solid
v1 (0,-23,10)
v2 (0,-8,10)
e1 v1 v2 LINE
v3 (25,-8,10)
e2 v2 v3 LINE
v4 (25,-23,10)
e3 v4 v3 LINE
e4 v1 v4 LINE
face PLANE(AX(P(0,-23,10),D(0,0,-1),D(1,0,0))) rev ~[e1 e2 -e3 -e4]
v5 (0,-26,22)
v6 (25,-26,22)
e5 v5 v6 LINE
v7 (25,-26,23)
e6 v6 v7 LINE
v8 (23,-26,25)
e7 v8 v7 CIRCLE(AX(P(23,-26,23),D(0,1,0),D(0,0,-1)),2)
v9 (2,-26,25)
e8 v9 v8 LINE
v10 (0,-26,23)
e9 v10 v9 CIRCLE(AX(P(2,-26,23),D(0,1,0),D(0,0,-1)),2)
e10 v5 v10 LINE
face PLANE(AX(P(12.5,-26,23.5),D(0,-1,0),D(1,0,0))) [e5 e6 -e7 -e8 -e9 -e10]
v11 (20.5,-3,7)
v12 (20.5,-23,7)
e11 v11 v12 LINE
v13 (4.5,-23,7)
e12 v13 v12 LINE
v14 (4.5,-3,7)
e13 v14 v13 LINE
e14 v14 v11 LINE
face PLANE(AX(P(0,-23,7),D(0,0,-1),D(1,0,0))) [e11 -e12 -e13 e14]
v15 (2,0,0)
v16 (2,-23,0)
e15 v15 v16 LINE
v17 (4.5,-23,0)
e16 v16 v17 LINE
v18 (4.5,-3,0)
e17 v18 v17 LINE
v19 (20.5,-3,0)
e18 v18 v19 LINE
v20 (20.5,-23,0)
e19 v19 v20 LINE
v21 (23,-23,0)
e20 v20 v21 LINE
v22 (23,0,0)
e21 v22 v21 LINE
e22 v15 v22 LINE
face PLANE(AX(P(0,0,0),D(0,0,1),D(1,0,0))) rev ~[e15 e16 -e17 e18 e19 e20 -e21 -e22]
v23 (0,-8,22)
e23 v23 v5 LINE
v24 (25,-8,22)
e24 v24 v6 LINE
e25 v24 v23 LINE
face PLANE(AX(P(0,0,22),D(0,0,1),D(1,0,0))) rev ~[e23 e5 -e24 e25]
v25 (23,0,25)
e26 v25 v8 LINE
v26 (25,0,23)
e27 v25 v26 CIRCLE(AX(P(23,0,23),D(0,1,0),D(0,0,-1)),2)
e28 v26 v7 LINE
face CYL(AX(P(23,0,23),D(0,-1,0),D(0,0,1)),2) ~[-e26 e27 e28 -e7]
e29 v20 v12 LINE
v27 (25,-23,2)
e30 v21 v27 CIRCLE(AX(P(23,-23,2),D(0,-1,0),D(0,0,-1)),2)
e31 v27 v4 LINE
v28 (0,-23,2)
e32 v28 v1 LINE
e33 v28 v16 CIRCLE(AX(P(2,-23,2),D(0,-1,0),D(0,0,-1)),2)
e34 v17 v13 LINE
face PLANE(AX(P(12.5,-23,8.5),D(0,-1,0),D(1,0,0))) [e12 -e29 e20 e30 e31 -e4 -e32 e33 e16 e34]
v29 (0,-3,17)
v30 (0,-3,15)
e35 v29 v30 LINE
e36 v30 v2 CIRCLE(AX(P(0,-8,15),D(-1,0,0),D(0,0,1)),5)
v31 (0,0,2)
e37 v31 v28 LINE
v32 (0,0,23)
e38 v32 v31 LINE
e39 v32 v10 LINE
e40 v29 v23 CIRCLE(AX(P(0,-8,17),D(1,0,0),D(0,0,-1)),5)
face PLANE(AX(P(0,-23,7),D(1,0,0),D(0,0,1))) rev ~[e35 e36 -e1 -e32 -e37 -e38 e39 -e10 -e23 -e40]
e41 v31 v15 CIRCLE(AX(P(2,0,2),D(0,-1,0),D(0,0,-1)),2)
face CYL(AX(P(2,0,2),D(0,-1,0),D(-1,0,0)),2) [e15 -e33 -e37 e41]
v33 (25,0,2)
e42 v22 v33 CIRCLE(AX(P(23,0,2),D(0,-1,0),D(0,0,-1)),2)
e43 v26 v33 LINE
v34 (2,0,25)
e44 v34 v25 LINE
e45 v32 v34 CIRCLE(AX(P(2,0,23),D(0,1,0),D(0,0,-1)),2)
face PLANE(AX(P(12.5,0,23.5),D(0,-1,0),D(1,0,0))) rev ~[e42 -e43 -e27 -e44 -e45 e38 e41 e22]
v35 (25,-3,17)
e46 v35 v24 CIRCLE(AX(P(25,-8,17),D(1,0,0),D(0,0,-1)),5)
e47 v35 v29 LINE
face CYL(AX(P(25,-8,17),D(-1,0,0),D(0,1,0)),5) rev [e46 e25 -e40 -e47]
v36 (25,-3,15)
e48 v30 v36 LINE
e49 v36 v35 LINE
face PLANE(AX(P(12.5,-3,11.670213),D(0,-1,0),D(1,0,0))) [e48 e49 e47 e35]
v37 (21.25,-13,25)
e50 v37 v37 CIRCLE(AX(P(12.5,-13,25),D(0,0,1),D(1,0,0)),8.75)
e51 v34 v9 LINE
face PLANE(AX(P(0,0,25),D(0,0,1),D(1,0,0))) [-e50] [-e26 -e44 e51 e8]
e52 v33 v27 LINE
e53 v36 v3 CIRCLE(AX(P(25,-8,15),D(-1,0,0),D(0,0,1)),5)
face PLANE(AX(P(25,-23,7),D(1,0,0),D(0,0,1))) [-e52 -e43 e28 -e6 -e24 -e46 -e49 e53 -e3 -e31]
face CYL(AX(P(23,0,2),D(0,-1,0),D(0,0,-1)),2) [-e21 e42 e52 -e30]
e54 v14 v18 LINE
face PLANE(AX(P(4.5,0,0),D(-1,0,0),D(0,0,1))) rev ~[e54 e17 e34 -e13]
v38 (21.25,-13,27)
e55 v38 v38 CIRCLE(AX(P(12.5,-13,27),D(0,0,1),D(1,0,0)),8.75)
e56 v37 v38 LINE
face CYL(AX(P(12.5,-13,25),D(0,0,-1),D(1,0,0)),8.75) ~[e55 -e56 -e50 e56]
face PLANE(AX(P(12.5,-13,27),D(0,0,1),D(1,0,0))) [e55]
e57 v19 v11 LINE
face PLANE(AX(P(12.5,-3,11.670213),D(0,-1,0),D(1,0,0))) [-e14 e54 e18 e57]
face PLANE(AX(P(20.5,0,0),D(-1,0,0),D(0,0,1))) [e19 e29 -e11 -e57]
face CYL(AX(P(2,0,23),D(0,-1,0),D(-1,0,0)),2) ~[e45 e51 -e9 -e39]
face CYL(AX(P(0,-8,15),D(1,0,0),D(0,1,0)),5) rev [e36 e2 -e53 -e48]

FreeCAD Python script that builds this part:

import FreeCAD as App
import Part
import Sketcher
from FreeCAD import Vector


def edges_at(feature, points):
    """Names of the edges that pass closest to the given points."""
    edges = feature.Shape.Edges
    near = lambda p: min(range(len(edges)), key=lambda i: edges[i].distToShape(Part.Vertex(*p))[0])
    return sorted({f"Edge{near(p) + 1}" for p in points})


def add_polygon(sketch, points):
    """Adds a closed chain of lines whose ends are joined by coincident constraints."""
    first, n = sketch.GeometryCount, len(points)
    for a, b in zip(points, points[1:] + points[:1]):
        sketch.addGeometry(Part.LineSegment(App.Vector(*a, 0), App.Vector(*b, 0)), False)
    for i in range(n):
        sketch.addConstraint(Sketcher.Constraint("Coincident", first + i, 2, first + (i + 1) % n, 1))

doc = App.newDocument("Part")
body = doc.addObject("PartDesign::Body", "Body")

# Sketch on XZ plane
sketch1 = body.newObject("Sketcher::SketchObject", "Sketch")
sketch1.AttachmentSupport = (doc.getObject("XZ_Plane"), [""])
sketch1.MapMode = "FlatFace"
add_polygon(sketch1, [(4.5, 7), (4.5, 0), (20.5, 0), (20.5, 7), (25, 7), (25, 22), (0, 22), (0, 7)])  # lines 0-7
sketch1.addConstraint([
    Sketcher.Constraint("Vertical", 0),
    Sketcher.Constraint("Horizontal", 1),
    Sketcher.Constraint("Vertical", 2),
    Sketcher.Constraint("Horizontal", 3),
    Sketcher.Constraint("Vertical", 4),
    Sketcher.Constraint("Horizontal", 5),
    Sketcher.Constraint("Vertical", 6),
    Sketcher.Constraint("Horizontal", 7),
    Sketcher.Constraint("PointOnObject", 0, 2, -1),
    Sketcher.Constraint("PointOnObject", 5, 2, -2),
    Sketcher.Constraint("Horizontal", 3, 2, 6, 2),
    Sketcher.Constraint("Equal", 3, 7),
    Sketcher.Constraint("DistanceX", 1, 1, 1, 2, 16.0),
    Sketcher.Constraint("DistanceX", 5, 2, 5, 1, 25.0),
    Sketcher.Constraint("DistanceY", 0, 2, 0, 1, 7.0),
    Sketcher.Constraint("DistanceY", 4, 1, 4, 2, 15.0),
])
pad1 = body.newObject("PartDesign::Pad", "Pad")
pad1.Profile = sketch1
pad1.Length = 3

# Sketch on XZ plane
sketch2 = body.newObject("Sketcher::SketchObject", "Sketch001")
sketch2.AttachmentSupport = (doc.getObject("XZ_Plane"), [""])
sketch2.MapMode = "FlatFace"
add_polygon(sketch2, [(0, 7), (0, 0), (4.5, 0), (4.5, 7)])  # lines 0-3
add_polygon(sketch2, [(20.5, 7), (20.5, 0), (25, 0), (25, 7)])  # lines 4-7
sketch2.addConstraint([
    Sketcher.Constraint("Vertical", 0),
    Sketcher.Constraint("Horizontal", 1),
    Sketcher.Constraint("Vertical", 2),
    Sketcher.Constraint("Horizontal", 3),
    Sketcher.Constraint("Vertical", 4),
    Sketcher.Constraint("Horizontal", 5),
    Sketcher.Constraint("Vertical", 6),
    Sketcher.Constraint("Horizontal", 7),
    Sketcher.Constraint("Coincident", 0, 2, -1, 1),
    Sketcher.Constraint("PointOnObject", 4, 2, -1),
    Sketcher.Constraint("Horizontal", 3, 2, 6, 2),
    Sketcher.Constraint("Equal", 3, 5),
    Sketcher.Constraint("DistanceY", 0, 2, 0, 1, 7.0),
    Sketcher.Constraint("DistanceX", 1, 1, 1, 2, 4.5),
    Sketcher.Constraint("DistanceX", -1, 1, 5, 2, 25.0),
])
pad2 = body.newObject("PartDesign::Pad", "Pad001")
pad2.Profile = sketch2
pad2.Length = 23

# Sketch on XZ plane
sketch3 = body.newObject("Sketcher::SketchObject", "Sketch002")
sketch3.AttachmentSupport = (doc.getObject("XZ_Plane"), [""])
sketch3.MapMode = "FlatFace"
add_polygon(sketch3, [(0, 25), (0, 22), (25, 22), (25, 25)])  # lines 0-3
sketch3.addConstraint([
    Sketcher.Constraint("Vertical", 0),
    Sketcher.Constraint("Horizontal", 1),
    Sketcher.Constraint("Vertical", 2),
    Sketcher.Constraint("Horizontal", 3),
    Sketcher.Constraint("PointOnObject", 0, 2, -2),
    Sketcher.Constraint("DistanceX", 1, 1, 1, 2, 25.0),
    Sketcher.Constraint("DistanceY", 0, 2, 0, 1, 3.0),
    Sketcher.Constraint("DistanceY", -1, 1, 0, 2, 22.0),
])
pad3 = body.newObject("PartDesign::Pad", "Pad002")
pad3.Profile = sketch3
pad3.Length = 26

# Sketch on XY plane
sketch4 = body.newObject("Sketcher::SketchObject", "Sketch003")
sketch4.AttachmentSupport = (doc.getObject("XY_Plane"), [""])
sketch4.MapMode = "FlatFace"
sketch4.AttachmentOffset = App.Placement(Vector(0, 0, 25), App.Rotation())
sketch4.addGeometry(Part.Circle(Vector(12.5, -13, 0), Vector(0, 0, 1), 8.75), False)
sketch4.addConstraint([
    Sketcher.Constraint("Diameter", 0, 17.5),
    Sketcher.Constraint("DistanceY", 0, 3, -1, 1, 13.0),
    Sketcher.Constraint("DistanceX", -1, 1, 0, 3, 12.5),
])
pad4 = body.newObject("PartDesign::Pad", "Pad003")
pad4.Profile = sketch4
pad4.Length = 2
doc.recompute()

fillet = body.newObject("PartDesign::Fillet", "Fillet")
fillet.Base = (pad4, edges_at(pad4, [
    (0, -13, 25),
    (25, -13, 25),
    (0, -11.5, 0),
    (25, -11.5, 0),
]))
fillet.Radius = 2

# Sketch on XZ plane
sketch5 = body.newObject("Sketcher::SketchObject", "Sketch004")
sketch5.AttachmentSupport = (doc.getObject("XZ_Plane"), [""])
sketch5.MapMode = "FlatFace"
sketch5.AttachmentOffset = App.Placement(Vector(0, 0, 23), App.Rotation())
add_polygon(sketch5, [(0, 10), (0, 7), (25, 7), (25, 10)])  # lines 0-3
sketch5.addConstraint([
    Sketcher.Constraint("Vertical", 0),
    Sketcher.Constraint("Horizontal", 1),
    Sketcher.Constraint("Vertical", 2),
    Sketcher.Constraint("Horizontal", 3),
    Sketcher.Constraint("PointOnObject", 0, 2, -2),
    Sketcher.Constraint("DistanceX", 1, 1, 1, 2, 25.0),
    Sketcher.Constraint("DistanceY", 0, 2, 0, 1, 3.0),
    Sketcher.Constraint("DistanceY", -1, 1, 0, 2, 7.0),
])
pad5 = body.newObject("PartDesign::Pad", "Pad004")
pad5.Profile = sketch5
pad5.Type = "UpToLast"
pad5.Reversed = True
doc.recompute()

fillet2 = body.newObject("PartDesign::Fillet", "Fillet001")
fillet2.Base = (pad5, edges_at(pad5, [(12.5, -3, 10), (12.5, -3, 22)]))
fillet2.Radius = 5

doc.recompute()
